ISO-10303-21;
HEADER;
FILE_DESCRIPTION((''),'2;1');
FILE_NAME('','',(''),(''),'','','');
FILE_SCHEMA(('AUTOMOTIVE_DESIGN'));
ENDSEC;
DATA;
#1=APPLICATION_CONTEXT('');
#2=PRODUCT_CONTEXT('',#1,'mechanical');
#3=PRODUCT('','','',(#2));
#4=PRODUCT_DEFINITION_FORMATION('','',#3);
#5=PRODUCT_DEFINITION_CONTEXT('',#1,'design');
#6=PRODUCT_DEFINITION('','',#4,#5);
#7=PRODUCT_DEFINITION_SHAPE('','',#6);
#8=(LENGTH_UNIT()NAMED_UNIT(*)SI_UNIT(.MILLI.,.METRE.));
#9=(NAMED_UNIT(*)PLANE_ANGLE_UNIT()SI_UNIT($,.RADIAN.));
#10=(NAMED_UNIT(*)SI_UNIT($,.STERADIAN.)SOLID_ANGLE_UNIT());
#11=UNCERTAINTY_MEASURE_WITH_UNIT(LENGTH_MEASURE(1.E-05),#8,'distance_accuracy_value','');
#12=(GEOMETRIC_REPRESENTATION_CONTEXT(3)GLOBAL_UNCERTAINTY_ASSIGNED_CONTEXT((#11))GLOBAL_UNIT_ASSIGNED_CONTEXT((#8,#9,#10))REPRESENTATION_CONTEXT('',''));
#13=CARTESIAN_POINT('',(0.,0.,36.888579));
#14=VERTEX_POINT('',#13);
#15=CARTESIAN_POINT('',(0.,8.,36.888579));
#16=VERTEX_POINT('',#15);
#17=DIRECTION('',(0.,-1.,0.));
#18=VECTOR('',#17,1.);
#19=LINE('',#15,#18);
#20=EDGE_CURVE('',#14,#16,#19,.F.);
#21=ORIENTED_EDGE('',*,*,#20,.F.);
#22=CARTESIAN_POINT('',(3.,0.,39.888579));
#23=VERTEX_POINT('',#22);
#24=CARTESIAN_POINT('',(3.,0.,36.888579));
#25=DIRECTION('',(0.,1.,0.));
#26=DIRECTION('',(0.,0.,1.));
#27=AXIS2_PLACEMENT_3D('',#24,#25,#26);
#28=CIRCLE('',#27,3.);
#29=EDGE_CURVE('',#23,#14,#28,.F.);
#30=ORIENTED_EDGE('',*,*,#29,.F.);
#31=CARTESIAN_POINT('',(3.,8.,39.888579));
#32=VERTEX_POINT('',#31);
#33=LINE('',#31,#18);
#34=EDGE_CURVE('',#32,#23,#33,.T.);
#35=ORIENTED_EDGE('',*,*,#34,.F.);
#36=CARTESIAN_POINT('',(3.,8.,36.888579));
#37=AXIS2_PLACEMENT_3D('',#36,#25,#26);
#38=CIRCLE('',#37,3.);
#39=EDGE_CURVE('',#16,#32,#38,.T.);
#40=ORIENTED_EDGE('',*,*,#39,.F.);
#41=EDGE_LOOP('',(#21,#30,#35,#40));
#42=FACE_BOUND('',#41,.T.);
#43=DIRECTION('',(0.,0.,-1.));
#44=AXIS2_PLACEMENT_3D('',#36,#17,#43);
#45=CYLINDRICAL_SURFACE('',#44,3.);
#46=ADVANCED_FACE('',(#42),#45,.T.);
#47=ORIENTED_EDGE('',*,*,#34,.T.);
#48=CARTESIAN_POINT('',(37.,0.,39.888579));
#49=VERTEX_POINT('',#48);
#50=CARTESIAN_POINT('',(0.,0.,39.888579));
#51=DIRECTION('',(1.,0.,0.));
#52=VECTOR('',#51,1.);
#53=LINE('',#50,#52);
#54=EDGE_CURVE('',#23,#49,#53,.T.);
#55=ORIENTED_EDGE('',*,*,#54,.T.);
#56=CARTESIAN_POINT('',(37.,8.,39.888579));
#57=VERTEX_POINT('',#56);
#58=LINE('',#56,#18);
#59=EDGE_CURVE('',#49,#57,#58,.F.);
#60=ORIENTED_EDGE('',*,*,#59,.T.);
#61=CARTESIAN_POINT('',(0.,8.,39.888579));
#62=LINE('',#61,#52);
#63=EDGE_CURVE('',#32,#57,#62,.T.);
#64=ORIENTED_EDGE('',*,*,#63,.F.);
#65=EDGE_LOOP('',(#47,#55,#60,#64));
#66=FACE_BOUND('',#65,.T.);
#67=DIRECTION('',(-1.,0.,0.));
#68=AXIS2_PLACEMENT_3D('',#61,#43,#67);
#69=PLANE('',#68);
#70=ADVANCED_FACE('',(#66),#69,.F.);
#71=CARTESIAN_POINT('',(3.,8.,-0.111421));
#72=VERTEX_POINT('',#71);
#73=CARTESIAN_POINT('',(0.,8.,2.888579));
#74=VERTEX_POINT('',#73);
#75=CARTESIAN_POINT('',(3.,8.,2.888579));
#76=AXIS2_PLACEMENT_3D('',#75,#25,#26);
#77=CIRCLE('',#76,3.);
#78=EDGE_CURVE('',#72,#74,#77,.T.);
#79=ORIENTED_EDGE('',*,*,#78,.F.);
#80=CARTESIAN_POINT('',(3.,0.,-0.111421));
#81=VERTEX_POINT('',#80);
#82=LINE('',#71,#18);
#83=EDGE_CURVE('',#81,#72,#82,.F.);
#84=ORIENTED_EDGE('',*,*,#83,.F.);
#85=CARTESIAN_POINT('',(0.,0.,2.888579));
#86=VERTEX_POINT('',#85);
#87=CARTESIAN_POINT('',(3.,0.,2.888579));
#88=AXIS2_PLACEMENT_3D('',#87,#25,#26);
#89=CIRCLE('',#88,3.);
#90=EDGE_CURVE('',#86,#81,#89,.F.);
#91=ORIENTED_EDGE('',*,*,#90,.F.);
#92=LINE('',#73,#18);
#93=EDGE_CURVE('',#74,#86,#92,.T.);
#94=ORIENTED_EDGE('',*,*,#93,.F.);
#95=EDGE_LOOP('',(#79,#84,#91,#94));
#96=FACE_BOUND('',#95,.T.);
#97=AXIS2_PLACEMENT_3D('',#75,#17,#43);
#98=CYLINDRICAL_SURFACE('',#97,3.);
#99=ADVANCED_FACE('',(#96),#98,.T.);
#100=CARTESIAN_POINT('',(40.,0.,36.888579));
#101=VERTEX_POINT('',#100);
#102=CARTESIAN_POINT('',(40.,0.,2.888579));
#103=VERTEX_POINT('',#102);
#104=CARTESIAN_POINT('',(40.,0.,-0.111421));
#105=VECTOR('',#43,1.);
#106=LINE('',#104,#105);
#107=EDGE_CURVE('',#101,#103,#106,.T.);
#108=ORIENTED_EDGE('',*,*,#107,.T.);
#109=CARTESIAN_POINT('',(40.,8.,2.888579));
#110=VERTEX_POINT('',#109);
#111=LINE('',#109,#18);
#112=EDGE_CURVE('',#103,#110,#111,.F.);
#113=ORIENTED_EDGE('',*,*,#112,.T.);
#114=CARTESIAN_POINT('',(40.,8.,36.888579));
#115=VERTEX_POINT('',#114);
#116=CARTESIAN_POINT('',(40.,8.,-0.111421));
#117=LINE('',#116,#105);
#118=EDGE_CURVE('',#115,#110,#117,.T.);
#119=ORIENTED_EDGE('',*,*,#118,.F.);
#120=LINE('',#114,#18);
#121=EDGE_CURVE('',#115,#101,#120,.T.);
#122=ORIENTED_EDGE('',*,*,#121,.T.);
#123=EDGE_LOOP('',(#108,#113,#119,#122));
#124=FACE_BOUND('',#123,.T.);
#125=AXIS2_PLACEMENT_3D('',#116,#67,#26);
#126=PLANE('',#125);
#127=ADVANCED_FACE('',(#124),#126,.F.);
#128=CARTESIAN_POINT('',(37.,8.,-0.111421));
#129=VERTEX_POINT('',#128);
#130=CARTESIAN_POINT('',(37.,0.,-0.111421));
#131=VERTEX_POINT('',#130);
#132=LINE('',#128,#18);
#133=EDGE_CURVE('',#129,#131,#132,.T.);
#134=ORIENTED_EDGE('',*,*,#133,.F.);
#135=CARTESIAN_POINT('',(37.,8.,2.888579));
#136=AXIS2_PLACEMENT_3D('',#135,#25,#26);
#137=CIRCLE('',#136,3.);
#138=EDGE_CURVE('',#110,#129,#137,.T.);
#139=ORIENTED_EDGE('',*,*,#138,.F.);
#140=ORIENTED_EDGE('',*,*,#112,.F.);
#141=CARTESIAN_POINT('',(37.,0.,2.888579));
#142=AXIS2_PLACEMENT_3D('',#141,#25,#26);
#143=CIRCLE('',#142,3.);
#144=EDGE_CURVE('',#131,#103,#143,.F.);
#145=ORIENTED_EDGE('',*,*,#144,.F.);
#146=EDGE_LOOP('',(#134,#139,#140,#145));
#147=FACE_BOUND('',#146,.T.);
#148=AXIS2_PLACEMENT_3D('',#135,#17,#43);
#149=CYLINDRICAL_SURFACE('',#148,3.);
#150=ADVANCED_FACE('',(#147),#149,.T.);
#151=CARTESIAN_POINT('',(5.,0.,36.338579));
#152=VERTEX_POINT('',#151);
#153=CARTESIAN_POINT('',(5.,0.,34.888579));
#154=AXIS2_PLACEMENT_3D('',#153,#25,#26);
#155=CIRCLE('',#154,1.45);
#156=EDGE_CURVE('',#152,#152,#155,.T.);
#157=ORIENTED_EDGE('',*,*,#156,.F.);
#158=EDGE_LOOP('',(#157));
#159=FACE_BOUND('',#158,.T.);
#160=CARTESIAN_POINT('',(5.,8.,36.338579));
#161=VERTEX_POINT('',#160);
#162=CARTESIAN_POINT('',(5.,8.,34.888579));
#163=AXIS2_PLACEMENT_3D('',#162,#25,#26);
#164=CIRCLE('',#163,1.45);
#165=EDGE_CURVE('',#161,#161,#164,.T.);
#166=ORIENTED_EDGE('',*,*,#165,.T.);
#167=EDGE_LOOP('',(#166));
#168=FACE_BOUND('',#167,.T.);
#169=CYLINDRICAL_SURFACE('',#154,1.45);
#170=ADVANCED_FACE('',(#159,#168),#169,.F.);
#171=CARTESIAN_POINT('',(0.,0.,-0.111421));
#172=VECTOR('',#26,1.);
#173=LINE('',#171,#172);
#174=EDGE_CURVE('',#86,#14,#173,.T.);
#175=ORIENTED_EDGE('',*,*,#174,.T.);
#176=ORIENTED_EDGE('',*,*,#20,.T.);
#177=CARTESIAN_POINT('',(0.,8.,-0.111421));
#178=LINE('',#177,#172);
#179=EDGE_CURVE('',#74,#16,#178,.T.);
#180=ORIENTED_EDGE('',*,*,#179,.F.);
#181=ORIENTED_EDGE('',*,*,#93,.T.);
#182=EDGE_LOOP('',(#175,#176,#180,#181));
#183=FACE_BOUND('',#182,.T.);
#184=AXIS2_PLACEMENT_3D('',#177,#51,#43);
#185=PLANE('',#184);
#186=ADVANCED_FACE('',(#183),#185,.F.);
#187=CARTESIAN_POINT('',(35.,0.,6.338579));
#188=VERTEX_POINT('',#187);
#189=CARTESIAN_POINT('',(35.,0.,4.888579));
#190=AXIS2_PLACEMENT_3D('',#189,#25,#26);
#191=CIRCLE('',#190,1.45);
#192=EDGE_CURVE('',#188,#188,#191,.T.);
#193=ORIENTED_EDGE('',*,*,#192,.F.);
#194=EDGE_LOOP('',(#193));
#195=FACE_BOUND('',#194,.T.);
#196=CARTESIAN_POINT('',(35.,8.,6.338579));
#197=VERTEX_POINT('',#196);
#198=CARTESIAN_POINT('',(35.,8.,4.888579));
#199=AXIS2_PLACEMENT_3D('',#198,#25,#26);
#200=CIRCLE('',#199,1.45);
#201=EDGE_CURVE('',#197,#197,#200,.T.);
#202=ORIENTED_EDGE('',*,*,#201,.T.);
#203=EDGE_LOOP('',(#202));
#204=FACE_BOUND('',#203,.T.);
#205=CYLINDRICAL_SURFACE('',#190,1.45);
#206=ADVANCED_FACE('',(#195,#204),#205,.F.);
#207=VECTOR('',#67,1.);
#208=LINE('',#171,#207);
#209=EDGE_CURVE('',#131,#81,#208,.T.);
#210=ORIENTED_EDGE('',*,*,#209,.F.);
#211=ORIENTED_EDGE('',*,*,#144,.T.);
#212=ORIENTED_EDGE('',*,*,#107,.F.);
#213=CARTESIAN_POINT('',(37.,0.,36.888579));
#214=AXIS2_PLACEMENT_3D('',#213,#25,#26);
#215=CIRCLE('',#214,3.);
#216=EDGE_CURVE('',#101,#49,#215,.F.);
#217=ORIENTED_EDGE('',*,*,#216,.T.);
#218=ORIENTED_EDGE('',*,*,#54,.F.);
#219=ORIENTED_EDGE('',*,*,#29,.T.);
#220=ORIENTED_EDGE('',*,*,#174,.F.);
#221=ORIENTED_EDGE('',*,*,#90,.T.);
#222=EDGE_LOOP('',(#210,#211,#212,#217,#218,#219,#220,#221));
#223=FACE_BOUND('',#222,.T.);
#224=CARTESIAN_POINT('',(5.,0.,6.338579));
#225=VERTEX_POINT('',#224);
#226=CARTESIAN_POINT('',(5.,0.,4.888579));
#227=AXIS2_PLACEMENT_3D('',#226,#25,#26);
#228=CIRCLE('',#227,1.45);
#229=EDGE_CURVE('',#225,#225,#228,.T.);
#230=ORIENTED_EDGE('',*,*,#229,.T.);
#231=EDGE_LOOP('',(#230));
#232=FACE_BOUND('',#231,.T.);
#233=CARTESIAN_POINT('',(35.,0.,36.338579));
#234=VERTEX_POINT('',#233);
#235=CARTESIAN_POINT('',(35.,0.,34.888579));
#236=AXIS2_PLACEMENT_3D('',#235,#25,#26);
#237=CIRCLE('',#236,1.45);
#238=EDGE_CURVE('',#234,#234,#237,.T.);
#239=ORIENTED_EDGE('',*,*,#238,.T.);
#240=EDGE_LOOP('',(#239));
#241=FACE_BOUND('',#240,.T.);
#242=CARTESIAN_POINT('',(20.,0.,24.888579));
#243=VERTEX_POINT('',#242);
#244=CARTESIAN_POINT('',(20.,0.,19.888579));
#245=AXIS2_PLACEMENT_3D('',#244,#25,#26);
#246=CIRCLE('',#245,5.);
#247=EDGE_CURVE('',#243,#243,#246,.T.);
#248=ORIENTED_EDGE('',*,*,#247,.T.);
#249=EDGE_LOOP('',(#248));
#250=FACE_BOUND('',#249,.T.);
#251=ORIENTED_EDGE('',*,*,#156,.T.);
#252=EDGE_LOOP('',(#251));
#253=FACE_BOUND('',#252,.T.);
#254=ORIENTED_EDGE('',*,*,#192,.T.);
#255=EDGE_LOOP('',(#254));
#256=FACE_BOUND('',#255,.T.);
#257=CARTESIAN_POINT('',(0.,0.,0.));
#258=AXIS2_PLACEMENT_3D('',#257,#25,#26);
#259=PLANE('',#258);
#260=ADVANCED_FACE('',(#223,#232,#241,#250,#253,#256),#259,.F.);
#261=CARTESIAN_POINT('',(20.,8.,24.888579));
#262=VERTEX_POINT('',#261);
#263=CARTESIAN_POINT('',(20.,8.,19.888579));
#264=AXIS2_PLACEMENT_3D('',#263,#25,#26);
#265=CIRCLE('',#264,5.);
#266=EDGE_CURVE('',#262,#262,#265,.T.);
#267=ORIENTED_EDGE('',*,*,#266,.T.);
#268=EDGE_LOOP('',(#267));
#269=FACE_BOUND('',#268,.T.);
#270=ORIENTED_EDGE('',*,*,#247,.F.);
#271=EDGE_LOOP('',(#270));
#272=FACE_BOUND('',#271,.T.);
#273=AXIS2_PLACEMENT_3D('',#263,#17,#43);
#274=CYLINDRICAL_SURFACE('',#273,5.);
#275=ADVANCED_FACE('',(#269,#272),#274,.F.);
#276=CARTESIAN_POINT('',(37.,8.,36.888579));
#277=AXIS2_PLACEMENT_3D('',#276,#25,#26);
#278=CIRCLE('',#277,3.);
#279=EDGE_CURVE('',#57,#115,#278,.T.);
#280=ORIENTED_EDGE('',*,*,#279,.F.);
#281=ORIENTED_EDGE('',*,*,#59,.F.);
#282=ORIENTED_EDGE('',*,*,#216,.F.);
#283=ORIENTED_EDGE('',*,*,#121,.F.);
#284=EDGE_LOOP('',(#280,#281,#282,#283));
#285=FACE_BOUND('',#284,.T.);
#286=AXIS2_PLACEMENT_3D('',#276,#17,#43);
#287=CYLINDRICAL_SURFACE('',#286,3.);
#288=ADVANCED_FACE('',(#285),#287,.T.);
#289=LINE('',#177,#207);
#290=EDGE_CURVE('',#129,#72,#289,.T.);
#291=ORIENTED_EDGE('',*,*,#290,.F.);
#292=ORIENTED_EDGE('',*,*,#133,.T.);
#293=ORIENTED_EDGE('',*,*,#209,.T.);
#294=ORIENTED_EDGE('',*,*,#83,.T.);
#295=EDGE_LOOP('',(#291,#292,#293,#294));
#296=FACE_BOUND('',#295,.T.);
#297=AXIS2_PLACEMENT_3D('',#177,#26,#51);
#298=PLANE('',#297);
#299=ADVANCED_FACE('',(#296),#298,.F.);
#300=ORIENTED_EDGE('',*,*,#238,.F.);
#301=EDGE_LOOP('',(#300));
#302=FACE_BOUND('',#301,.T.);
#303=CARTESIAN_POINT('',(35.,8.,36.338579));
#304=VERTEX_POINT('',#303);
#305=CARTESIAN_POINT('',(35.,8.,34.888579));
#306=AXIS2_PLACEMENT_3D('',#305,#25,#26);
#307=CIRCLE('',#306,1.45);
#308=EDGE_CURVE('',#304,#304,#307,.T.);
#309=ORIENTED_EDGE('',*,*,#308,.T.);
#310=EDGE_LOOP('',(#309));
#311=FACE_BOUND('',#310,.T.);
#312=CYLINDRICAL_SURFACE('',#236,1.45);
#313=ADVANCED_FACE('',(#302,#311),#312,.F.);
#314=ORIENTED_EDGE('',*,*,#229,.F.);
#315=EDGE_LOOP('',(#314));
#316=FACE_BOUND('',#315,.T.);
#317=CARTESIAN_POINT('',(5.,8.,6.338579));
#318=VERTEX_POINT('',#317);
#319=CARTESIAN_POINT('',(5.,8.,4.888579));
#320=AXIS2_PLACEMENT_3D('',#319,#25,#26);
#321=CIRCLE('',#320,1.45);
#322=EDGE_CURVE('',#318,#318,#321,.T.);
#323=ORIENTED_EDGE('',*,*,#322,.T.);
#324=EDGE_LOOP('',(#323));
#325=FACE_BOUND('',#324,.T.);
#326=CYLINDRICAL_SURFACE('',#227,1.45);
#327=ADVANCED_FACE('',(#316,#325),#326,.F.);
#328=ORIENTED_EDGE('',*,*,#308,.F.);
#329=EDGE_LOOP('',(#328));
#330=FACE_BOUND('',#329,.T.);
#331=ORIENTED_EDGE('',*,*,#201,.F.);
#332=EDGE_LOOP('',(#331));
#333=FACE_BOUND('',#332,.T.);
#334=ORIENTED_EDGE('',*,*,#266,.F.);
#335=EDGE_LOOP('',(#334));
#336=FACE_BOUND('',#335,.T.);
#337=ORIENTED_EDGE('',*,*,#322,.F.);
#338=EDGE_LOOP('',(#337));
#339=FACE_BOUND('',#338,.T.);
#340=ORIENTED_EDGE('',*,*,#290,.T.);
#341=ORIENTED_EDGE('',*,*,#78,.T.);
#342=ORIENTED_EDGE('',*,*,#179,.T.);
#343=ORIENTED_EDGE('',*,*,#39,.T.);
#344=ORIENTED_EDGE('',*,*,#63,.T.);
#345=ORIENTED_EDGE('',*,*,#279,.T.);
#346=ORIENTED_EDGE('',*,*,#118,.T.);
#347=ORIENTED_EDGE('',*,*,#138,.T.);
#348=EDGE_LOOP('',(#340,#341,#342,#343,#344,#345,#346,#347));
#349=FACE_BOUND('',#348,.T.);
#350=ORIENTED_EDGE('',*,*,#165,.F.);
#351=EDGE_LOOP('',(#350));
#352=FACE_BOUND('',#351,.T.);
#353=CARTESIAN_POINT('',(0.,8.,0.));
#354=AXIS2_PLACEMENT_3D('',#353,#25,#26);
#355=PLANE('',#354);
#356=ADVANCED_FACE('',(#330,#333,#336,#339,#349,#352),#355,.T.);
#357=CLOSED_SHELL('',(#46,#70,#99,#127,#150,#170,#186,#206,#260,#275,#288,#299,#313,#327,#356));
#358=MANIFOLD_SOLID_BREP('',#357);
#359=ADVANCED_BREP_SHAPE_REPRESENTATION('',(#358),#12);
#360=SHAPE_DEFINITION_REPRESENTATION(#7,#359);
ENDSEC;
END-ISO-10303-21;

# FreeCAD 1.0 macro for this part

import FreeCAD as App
import Part
import Sketcher
from FreeCAD import Vector
Q = App.Units.Quantity


def edges_at(feature, points):
    """Names of the edges that pass closest to the given points."""
    edges = feature.Shape.Edges
    near = lambda p: min(range(len(edges)), key=lambda i: edges[i].distToShape(Part.Vertex(*p))[0])
    return sorted({f"Edge{near(p) + 1}" for p in points})


def add_polygon(sketch, points):
    """Adds a closed chain of lines whose ends are joined by coincident constraints."""
    first, n = sketch.GeometryCount, len(points)
    for a, b in zip(points, points[1:] + points[:1]):
        sketch.addGeometry(Part.LineSegment(App.Vector(*a, 0), App.Vector(*b, 0)), False)
    for i in range(n):
        sketch.addConstraint(Sketcher.Constraint("Coincident", first + i, 2, first + (i + 1) % n, 1))

doc = App.newDocument("Part")
body = doc.addObject("PartDesign::Body", "Body")

# Sketch on XZ plane
sketch1 = doc.addObject("Sketcher::SketchObject", "Sketch")
body.addObject(sketch1)
sketch1.AttachmentSupport = (doc.XZ_Plane, [""])
sketch1.MapMode = "FlatFace"
add_polygon(sketch1, [(0, 0), (0, 40), (40, 40), (40, 0)])  # lines 0-3
sketch1.addGeometry(Part.Circle(Vector(20, 20, 0), Vector(0, 0, 1), 5), False)  # 4
sketch1.addConstraint([
    Sketcher.Constraint("Vertical", 0),
    Sketcher.Constraint("Horizontal", 1),
    Sketcher.Constraint("Vertical", 2),
    Sketcher.Constraint("Horizontal", 3),
    Sketcher.Constraint("PointOnObject", 0, 2, -2),
    Sketcher.Constraint("Equal", 3, 0),
    Sketcher.Constraint("Diameter", 4, Q("10 mm")),
    Sketcher.Constraint("DistanceX", 1, 1, 1, 2, Q("40 mm")),
    Sketcher.Constraint("DistanceX", -1, 1, 4, 3, Q("20 mm")),
    Sketcher.Constraint("DistanceY", 4, 3, 0, 2, Q("20 mm")),
    Sketcher.Constraint("DistanceY", -1, 1, 4, 3, Q("19.888579 mm")),
])
pad1 = doc.addObject("PartDesign::Pad", "Pad")
body.addObject(pad1)
pad1.Profile = sketch1
pad1.Length = 8
pad1.Reversed = True

# Sketch on XZ plane
sketch2 = doc.addObject("Sketcher::SketchObject", "Sketch001")
body.addObject(sketch2)
sketch2.AttachmentSupport = (doc.XZ_Plane, [""])
sketch2.MapMode = "FlatFace"
sketch2.AttachmentOffset = App.Placement(Vector(0, 0, -8), App.Rotation())
sketch2.addGeometry([
    Part.Circle(Vector(5, 4.9, 0), Vector(0, 0, 1), 1.4),
    Part.Circle(Vector(35, 4.9, 0), Vector(0, 0, 1), 1.4),
    Part.Circle(Vector(35, 34.9, 0), Vector(0, 0, 1), 1.4),
    Part.Circle(Vector(5, 34.9, 0), Vector(0, 0, 1), 1.4),
], False)
sketch2.addConstraint([
    Sketcher.Constraint("Equal", 0, 1),
    Sketcher.Constraint("Equal", 1, 2),
    Sketcher.Constraint("Equal", 2, 3),
    Sketcher.Constraint("Horizontal", 0, 3, 1, 3),
    Sketcher.Constraint("Horizontal", 2, 3, 3, 3),
    Sketcher.Constraint("Vertical", 1, 3, 2, 3),
    Sketcher.Constraint("Vertical", 0, 3, 3, 3),
    Sketcher.Constraint("Diameter", 0, Q("2.9 mm")),
    Sketcher.Constraint("DistanceX", -1, 1, 0, 3, Q("5 mm")),
    Sketcher.Constraint("DistanceX", -1, 1, 1, 3, Q("35 mm")),
    Sketcher.Constraint("DistanceY", 1, 3, 2, 3, Q("30 mm")),
    Sketcher.Constraint("DistanceY", -1, 1, 0, 3, Q("4.888579 mm")),
])
pocket1 = doc.addObject("PartDesign::Pocket", "Pocket")
body.addObject(pocket1)
pocket1.Profile = sketch2
pocket1.Type = "ThroughAll"
pocket1.Reversed = True
doc.recompute()

fillet = doc.addObject("PartDesign::Fillet", "Fillet")
body.addObject(fillet)
fillet.Base = (pocket1, edges_at(pocket1, [
    (0, 4, -0.111),
    (40, 4, -0.111),
    (40, 4, 39.889),
    (0, 4, 39.889),
]))
fillet.Radius = 3

doc.recompute()
